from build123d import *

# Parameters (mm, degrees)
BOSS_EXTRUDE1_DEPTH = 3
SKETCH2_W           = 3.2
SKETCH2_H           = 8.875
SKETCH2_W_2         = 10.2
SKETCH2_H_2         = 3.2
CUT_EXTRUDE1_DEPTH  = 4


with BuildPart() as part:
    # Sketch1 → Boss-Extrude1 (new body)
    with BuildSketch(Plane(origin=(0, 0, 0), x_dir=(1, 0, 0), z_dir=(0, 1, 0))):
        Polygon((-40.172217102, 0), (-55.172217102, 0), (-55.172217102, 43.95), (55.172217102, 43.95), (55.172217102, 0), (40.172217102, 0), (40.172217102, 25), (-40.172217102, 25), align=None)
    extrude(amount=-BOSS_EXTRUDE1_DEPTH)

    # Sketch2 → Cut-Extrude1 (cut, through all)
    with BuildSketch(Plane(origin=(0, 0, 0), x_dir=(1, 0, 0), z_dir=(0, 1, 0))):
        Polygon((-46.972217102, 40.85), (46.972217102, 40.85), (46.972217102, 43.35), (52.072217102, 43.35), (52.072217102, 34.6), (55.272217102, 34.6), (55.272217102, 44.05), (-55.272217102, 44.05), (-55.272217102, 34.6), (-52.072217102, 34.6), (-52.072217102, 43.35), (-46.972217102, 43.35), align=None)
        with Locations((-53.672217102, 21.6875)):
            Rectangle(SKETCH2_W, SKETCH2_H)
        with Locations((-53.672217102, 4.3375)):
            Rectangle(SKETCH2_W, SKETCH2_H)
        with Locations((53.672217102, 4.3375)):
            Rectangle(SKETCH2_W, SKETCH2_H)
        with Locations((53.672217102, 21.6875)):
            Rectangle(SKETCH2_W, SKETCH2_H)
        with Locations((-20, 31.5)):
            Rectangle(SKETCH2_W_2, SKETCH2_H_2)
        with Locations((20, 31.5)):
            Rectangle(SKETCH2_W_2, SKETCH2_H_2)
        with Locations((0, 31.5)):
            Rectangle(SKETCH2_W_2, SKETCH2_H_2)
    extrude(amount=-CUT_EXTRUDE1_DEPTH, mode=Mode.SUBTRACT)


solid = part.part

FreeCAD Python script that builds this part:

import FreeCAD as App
import Part
import Sketcher
Q = App.Units.Quantity

doc = App.newDocument("Part")
params = doc.addObject("Spreadsheet::Sheet", "Params")
for row, (alias, value) in enumerate([
    ("sketch1_width", "15 mm"),
    ("sketch1_height", "25 mm"),
    ("sketch1_height2", "43.95 mm"),
    ("pad1_length", "3 mm"),
    ("sketch2_width", "5.1 mm"),
    ("sketch2_width2", "3.2 mm"),
    ("sketch2_width3", "10.2 mm"),
    ("sketch2_height", "2.5 mm"),
    ("sketch2_height2", "8.75 mm"),
], start=1):
    params.set(f"A{row}", alias)
    params.set(f"B{row}", "=" + value)
    params.setAlias(f"B{row}", alias)

body = doc.addObject("PartDesign::Body", "Body")

# Sketch on XZ plane
sketch1 = body.newObject("Sketcher::SketchObject", "Sketch")
sketch1.AttachmentSupport = (doc.getObject("XZ_Plane"), [""])
sketch1.MapMode = "FlatFace"
sketch1.addGeometry([
    Part.LineSegment(App.Vector(-55, 0, 0), App.Vector(-40, 0, 0)),  # 0
    Part.LineSegment(App.Vector(-40, 0, 0), App.Vector(-40, -25, 0)),  # 1
    Part.LineSegment(App.Vector(-40, -25, 0), App.Vector(40, -25, 0)),  # 2
    Part.LineSegment(App.Vector(40, -25, 0), App.Vector(40, 0, 0)),  # 3
    Part.LineSegment(App.Vector(40, 0, 0), App.Vector(55, 0, 0)),  # 4
    Part.LineSegment(App.Vector(55, 0, 0), App.Vector(55, -44, 0)),  # 5
    Part.LineSegment(App.Vector(55, -44, 0), App.Vector(-55, -44, 0)),  # 6
    Part.LineSegment(App.Vector(-55, -44, 0), App.Vector(-55, 0, 0)),  # 7
], False)
sketch1.addConstraint([
    Sketcher.Constraint("Coincident", 0, 2, 1, 1),
    Sketcher.Constraint("Coincident", 1, 2, 2, 1),
    Sketcher.Constraint("Coincident", 2, 2, 3, 1),
    Sketcher.Constraint("Coincident", 3, 2, 4, 1),
    Sketcher.Constraint("Coincident", 4, 2, 5, 1),
    Sketcher.Constraint("Coincident", 5, 2, 6, 1),
    Sketcher.Constraint("Coincident", 6, 2, 7, 1),
    Sketcher.Constraint("Coincident", 7, 2, 0, 1),
    Sketcher.Constraint("Horizontal", 0),
    Sketcher.Constraint("Vertical", 1),
    Sketcher.Constraint("Horizontal", 2),
    Sketcher.Constraint("Vertical", 3),
    Sketcher.Constraint("Horizontal", 4),
    Sketcher.Constraint("Vertical", 5),
    Sketcher.Constraint("Horizontal", 6),
    Sketcher.Constraint("Vertical", 7),
    Sketcher.Constraint("Symmetric", 0, 2, 3, 2, -1, 1),
    Sketcher.Constraint("Symmetric", 4, 2, 7, 2, -2),
    Sketcher.Constraint("DistanceX", 0, 1, 0, 2, Q("15 mm")),
    Sketcher.Constraint("DistanceY", 1, 2, 1, 1, Q("25 mm")),
    Sketcher.Constraint("DistanceY", 5, 2, 5, 1, Q("43.95 mm")),
    Sketcher.Constraint("DistanceX", 2, 1, 2, 2, Q("80.344434 mm")),
])
sketch1.setExpression("Constraints[18]", "Params.sketch1_width")
sketch1.setExpression("Constraints[19]", "Params.sketch1_height")
sketch1.setExpression("Constraints[20]", "Params.sketch1_height2")
pad1 = body.newObject("PartDesign::Pad", "Pad")
pad1.Profile = sketch1
pad1.setExpression("Length", "Params.pad1_length")

# Sketch on XZ plane
sketch2 = body.newObject("Sketcher::SketchObject", "Sketch001")
sketch2.AttachmentSupport = (doc.getObject("XZ_Plane"), [""])
sketch2.MapMode = "FlatFace"
sketch2.addGeometry([
    Part.LineSegment(App.Vector(-47, -40.9, 0), App.Vector(47, -40.9, 0)),  # 0
    Part.LineSegment(App.Vector(47, -40.9, 0), App.Vector(47, -43.4, 0)),  # 1
    Part.LineSegment(App.Vector(47, -43.4, 0), App.Vector(52.1, -43.4, 0)),  # 2
    Part.LineSegment(App.Vector(52.1, -43.4, 0), App.Vector(52.1, -34.6, 0)),  # 3
    Part.LineSegment(App.Vector(52.1, -34.6, 0), App.Vector(55.3, -34.6, 0)),  # 4
    Part.LineSegment(App.Vector(55.3, -34.6, 0), App.Vector(55.3, -44, 0)),  # 5
    Part.LineSegment(App.Vector(55.3, -44, 0), App.Vector(-55.3, -44, 0)),  # 6
    Part.LineSegment(App.Vector(-55.3, -44, 0), App.Vector(-55.3, -34.6, 0)),  # 7
    Part.LineSegment(App.Vector(-55.3, -34.6, 0), App.Vector(-52.1, -34.6, 0)),  # 8
    Part.LineSegment(App.Vector(-52.1, -34.6, 0), App.Vector(-52.1, -43.4, 0)),  # 9
    Part.LineSegment(App.Vector(-52.1, -43.4, 0), App.Vector(-47, -43.4, 0)),  # 10
    Part.LineSegment(App.Vector(-47, -43.4, 0), App.Vector(-47, -40.9, 0)),  # 11
    Part.LineSegment(App.Vector(-55.3, -26.1, 0), App.Vector(-55.3, -17.2, 0)),  # 12
    Part.LineSegment(App.Vector(-55.3, -17.2, 0), App.Vector(-52.1, -17.2, 0)),  # 13
    Part.LineSegment(App.Vector(-52.1, -17.2, 0), App.Vector(-52.1, -26.1, 0)),  # 14
    Part.LineSegment(App.Vector(-52.1, -26.1, 0), App.Vector(-55.3, -26.1, 0)),  # 15
    Part.LineSegment(App.Vector(-55.3, -8.8, 0), App.Vector(-55.3, 0.1, 0)),  # 16
    Part.LineSegment(App.Vector(-55.3, 0.1, 0), App.Vector(-52.1, 0.1, 0)),  # 17
    Part.LineSegment(App.Vector(-52.1, 0.1, 0), App.Vector(-52.1, -8.8, 0)),  # 18
    Part.LineSegment(App.Vector(-52.1, -8.8, 0), App.Vector(-55.3, -8.8, 0)),  # 19
    Part.LineSegment(App.Vector(52.1, -8.8, 0), App.Vector(52.1, 0.1, 0)),  # 20
    Part.LineSegment(App.Vector(52.1, 0.1, 0), App.Vector(55.3, 0.1, 0)),  # 21
    Part.LineSegment(App.Vector(55.3, 0.1, 0), App.Vector(55.3, -8.8, 0)),  # 22
    Part.LineSegment(App.Vector(55.3, -8.8, 0), App.Vector(52.1, -8.8, 0)),  # 23
    Part.LineSegment(App.Vector(52.1, -26.1, 0), App.Vector(52.1, -17.2, 0)),  # 24
    Part.LineSegment(App.Vector(52.1, -17.2, 0), App.Vector(55.3, -17.2, 0)),  # 25
    Part.LineSegment(App.Vector(55.3, -17.2, 0), App.Vector(55.3, -26.1, 0)),  # 26
    Part.LineSegment(App.Vector(55.3, -26.1, 0), App.Vector(52.1, -26.1, 0)),  # 27
    Part.LineSegment(App.Vector(-25.1, -33.1, 0), App.Vector(-25.1, -29.9, 0)),  # 28
    Part.LineSegment(App.Vector(-25.1, -29.9, 0), App.Vector(-14.9, -29.9, 0)),  # 29
    Part.LineSegment(App.Vector(-14.9, -29.9, 0), App.Vector(-14.9, -33.1, 0)),  # 30
    Part.LineSegment(App.Vector(-14.9, -33.1, 0), App.Vector(-25.1, -33.1, 0)),  # 31
    Part.LineSegment(App.Vector(14.9, -33.1, 0), App.Vector(14.9, -29.9, 0)),  # 32
    Part.LineSegment(App.Vector(14.9, -29.9, 0), App.Vector(25.1, -29.9, 0)),  # 33
    Part.LineSegment(App.Vector(25.1, -29.9, 0), App.Vector(25.1, -33.1, 0)),  # 34
    Part.LineSegment(App.Vector(25.1, -33.1, 0), App.Vector(14.9, -33.1, 0)),  # 35
    Part.LineSegment(App.Vector(-5.1, -33.1, 0), App.Vector(-5.1, -29.9, 0)),  # 36
    Part.LineSegment(App.Vector(-5.1, -29.9, 0), App.Vector(5.1, -29.9, 0)),  # 37
    Part.LineSegment(App.Vector(5.1, -29.9, 0), App.Vector(5.1, -33.1, 0)),  # 38
    Part.LineSegment(App.Vector(5.1, -33.1, 0), App.Vector(-5.1, -33.1, 0)),  # 39
], False)
sketch2.addConstraint([
    Sketcher.Constraint("Coincident", 0, 2, 1, 1),
    Sketcher.Constraint("Coincident", 1, 2, 2, 1),
    Sketcher.Constraint("Coincident", 2, 2, 3, 1),
    Sketcher.Constraint("Coincident", 3, 2, 4, 1),
    Sketcher.Constraint("Coincident", 4, 2, 5, 1),
    Sketcher.Constraint("Coincident", 5, 2, 6, 1),
    Sketcher.Constraint("Coincident", 6, 2, 7, 1),
    Sketcher.Constraint("Coincident", 7, 2, 8, 1),
    Sketcher.Constraint("Coincident", 8, 2, 9, 1),
    Sketcher.Constraint("Coincident", 9, 2, 10, 1),
    Sketcher.Constraint("Coincident", 10, 2, 11, 1),
    Sketcher.Constraint("Coincident", 11, 2, 0, 1),
    Sketcher.Constraint("Coincident", 12, 2, 13, 1),
    Sketcher.Constraint("Coincident", 13, 2, 14, 1),
    Sketcher.Constraint("Coincident", 14, 2, 15, 1),
    Sketcher.Constraint("Coincident", 15, 2, 12, 1),
    Sketcher.Constraint("Coincident", 16, 2, 17, 1),
    Sketcher.Constraint("Coincident", 17, 2, 18, 1),
    Sketcher.Constraint("Coincident", 18, 2, 19, 1),
    Sketcher.Constraint("Coincident", 19, 2, 16, 1),
    Sketcher.Constraint("Coincident", 20, 2, 21, 1),
    Sketcher.Constraint("Coincident", 21, 2, 22, 1),
    Sketcher.Constraint("Coincident", 22, 2, 23, 1),
    Sketcher.Constraint("Coincident", 23, 2, 20, 1),
    Sketcher.Constraint("Coincident", 24, 2, 25, 1),
    Sketcher.Constraint("Coincident", 25, 2, 26, 1),
    Sketcher.Constraint("Coincident", 26, 2, 27, 1),
    Sketcher.Constraint("Coincident", 27, 2, 24, 1),
    Sketcher.Constraint("Coincident", 28, 2, 29, 1),
    Sketcher.Constraint("Coincident", 29, 2, 30, 1),
    Sketcher.Constraint("Coincident", 30, 2, 31, 1),
    Sketcher.Constraint("Coincident", 31, 2, 28, 1),
    Sketcher.Constraint("Coincident", 32, 2, 33, 1),
    Sketcher.Constraint("Coincident", 33, 2, 34, 1),
    Sketcher.Constraint("Coincident", 34, 2, 35, 1),
    Sketcher.Constraint("Coincident", 35, 2, 32, 1),
    Sketcher.Constraint("Coincident", 36, 2, 37, 1),
    Sketcher.Constraint("Coincident", 37, 2, 38, 1),
    Sketcher.Constraint("Coincident", 38, 2, 39, 1),
    Sketcher.Constraint("Coincident", 39, 2, 36, 1),
    Sketcher.Constraint("Horizontal", 0),
    Sketcher.Constraint("Vertical", 1),
    Sketcher.Constraint("Horizontal", 2),
    Sketcher.Constraint("Vertical", 3),
    Sketcher.Constraint("Horizontal", 4),
    Sketcher.Constraint("Vertical", 5),
    Sketcher.Constraint("Horizontal", 6),
    Sketcher.Constraint("Vertical", 7),
    Sketcher.Constraint("Horizontal", 8),
    Sketcher.Constraint("Vertical", 9),
    Sketcher.Constraint("Horizontal", 10),
    Sketcher.Constraint("Vertical", 11),
    Sketcher.Constraint("Vertical", 12),
    Sketcher.Constraint("Horizontal", 13),
    Sketcher.Constraint("Vertical", 14),
    Sketcher.Constraint("Horizontal", 15),
    Sketcher.Constraint("Vertical", 16),
    Sketcher.Constraint("Horizontal", 17),
    Sketcher.Constraint("Vertical", 18),
    Sketcher.Constraint("Horizontal", 19),
    Sketcher.Constraint("Vertical", 20),
    Sketcher.Constraint("Horizontal", 21),
    Sketcher.Constraint("Vertical", 22),
    Sketcher.Constraint("Horizontal", 23),
    Sketcher.Constraint("Vertical", 24),
    Sketcher.Constraint("Horizontal", 25),
    Sketcher.Constraint("Vertical", 26),
    Sketcher.Constraint("Horizontal", 27),
    Sketcher.Constraint("Vertical", 28),
    Sketcher.Constraint("Horizontal", 29),
    Sketcher.Constraint("Vertical", 30),
    Sketcher.Constraint("Horizontal", 31),
    Sketcher.Constraint("Vertical", 32),
    Sketcher.Constraint("Horizontal", 33),
    Sketcher.Constraint("Vertical", 34),
    Sketcher.Constraint("Horizontal", 35),
    Sketcher.Constraint("Vertical", 36),
    Sketcher.Constraint("Horizontal", 37),
    Sketcher.Constraint("Vertical", 38),
    Sketcher.Constraint("Horizontal", 39),
    Sketcher.Constraint("Symmetric", 4, 2, 7, 2, -2),
    Sketcher.Constraint("Symmetric", 2, 2, 9, 2, -2),
    Sketcher.Constraint("Symmetric", 17, 2, 20, 2, -2),
    Sketcher.Constraint("Symmetric", 19, 2, 22, 2, -2),
    Sketcher.Constraint("Symmetric", 13, 2, 24, 2, -2),
    Sketcher.Constraint("Symmetric", 15, 2, 26, 2, -2),
    Sketcher.Constraint("Symmetric", 29, 2, 32, 2, -2),
    Sketcher.Constraint("Symmetric", 31, 2, 34, 2, -2),
    Sketcher.Constraint("Horizontal", 33, 2, 36, 2),
    Sketcher.Constraint("Horizontal", 35, 2, 38, 2),
    Sketcher.Constraint("Vertical", 7, 2, 12, 2),
    Sketcher.Constraint("Vertical", 9, 2, 13, 2),
    Sketcher.Constraint("Vertical", 15, 2, 16, 2),
    Sketcher.Constraint("Vertical", 14, 2, 17, 2),
    Sketcher.Constraint("Equal", 2, 10),
    Sketcher.Constraint("Equal", 35, 37),
    Sketcher.Constraint("Equal", 14, 16),
    Sketcher.Constraint("Equal", 27, 28),
    Sketcher.Constraint("DistanceX", 2, 1, 2, 2, Q("5.1 mm")),
    Sketcher.Constraint("DistanceX", 4, 1, 4, 2, Q("3.2 mm")),
    Sketcher.Constraint("DistanceX", 29, 1, 29, 2, Q("10.2 mm")),
    Sketcher.Constraint("DistanceY", 1, 2, 1, 1, Q("2.5 mm")),
    Sketcher.Constraint("DistanceX", 28, 2, 36, 2, Q("20 mm")),
    Sketcher.Constraint("DistanceX", 36, 2, 32, 2, Q("20 mm")),
    Sketcher.Constraint("DistanceY", 3, 1, 3, 2, Q("8.75 mm")),
    Sketcher.Constraint("DistanceY", 5, 2, 5, 1, Q("9.45 mm")),
    Sketcher.Constraint("DistanceY", 3, 2, -1, 1, Q("34.6 mm")),
    Sketcher.Constraint("DistanceY", -1, 1, 16, 2, Q("0.1 mm")),
    Sketcher.Constraint("DistanceY", 28, 2, -1, 1, Q("29.9 mm")),
    Sketcher.Constraint("DistanceY", 11, 2, 12, 2, Q("23.6 mm")),
    Sketcher.Constraint("DistanceY", 12, 1, 12, 2, Q("8.875 mm")),
    Sketcher.Constraint("DistanceX", 0, 1, 0, 2, Q("93.944434 mm")),
])
sketch2.setExpression("Constraints[98]", "Params.sketch2_width")
sketch2.setExpression("Constraints[99]", "Params.sketch2_width2")
sketch2.setExpression("Constraints[100]", "Params.sketch2_width3")
sketch2.setExpression("Constraints[101]", "Params.sketch2_height")
sketch2.setExpression("Constraints[104]", "Params.sketch2_height2")
pocket1 = body.newObject("PartDesign::Pocket", "Pocket")
pocket1.Profile = sketch2
pocket1.Type = "ThroughAll"
pocket1.Reversed = True

doc.recompute()
